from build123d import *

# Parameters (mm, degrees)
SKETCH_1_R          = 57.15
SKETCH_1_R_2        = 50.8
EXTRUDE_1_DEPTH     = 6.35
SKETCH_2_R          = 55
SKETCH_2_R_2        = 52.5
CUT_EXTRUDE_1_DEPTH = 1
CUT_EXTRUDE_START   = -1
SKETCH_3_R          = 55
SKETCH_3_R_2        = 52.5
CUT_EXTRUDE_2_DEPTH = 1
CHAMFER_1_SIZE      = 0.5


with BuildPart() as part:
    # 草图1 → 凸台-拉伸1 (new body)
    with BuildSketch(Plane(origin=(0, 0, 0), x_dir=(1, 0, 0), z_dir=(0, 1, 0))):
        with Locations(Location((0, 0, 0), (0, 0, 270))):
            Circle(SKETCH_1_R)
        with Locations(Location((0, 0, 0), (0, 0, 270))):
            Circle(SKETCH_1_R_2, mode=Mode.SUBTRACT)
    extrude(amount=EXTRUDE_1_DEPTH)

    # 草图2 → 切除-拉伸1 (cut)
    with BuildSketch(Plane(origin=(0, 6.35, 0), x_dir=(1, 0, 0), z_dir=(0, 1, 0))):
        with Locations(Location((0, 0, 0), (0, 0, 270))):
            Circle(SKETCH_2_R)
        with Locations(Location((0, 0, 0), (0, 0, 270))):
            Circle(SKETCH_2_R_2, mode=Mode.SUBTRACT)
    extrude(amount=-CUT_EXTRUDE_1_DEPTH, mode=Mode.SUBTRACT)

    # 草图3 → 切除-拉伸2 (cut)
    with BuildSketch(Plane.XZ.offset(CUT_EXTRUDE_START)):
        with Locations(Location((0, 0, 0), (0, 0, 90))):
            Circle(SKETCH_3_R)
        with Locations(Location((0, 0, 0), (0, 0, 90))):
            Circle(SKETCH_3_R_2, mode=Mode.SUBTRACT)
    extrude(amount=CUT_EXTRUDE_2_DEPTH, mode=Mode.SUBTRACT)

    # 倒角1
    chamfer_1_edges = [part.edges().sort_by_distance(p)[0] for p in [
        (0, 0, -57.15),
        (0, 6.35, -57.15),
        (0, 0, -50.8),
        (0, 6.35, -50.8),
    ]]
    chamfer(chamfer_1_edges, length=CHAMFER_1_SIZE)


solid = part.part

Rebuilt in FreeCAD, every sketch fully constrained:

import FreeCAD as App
import Part
import Sketcher
from FreeCAD import Vector
Q = App.Units.Quantity


def edges_at(feature, points):
    """Names of the edges that pass closest to the given points."""
    edges = feature.Shape.Edges
    near = lambda p: min(range(len(edges)), key=lambda i: edges[i].distToShape(Part.Vertex(*p))[0])
    return sorted({f"Edge{near(p) + 1}" for p in points})

doc = App.newDocument("Part")
body = doc.addObject("PartDesign::Body", "Body")

sketch1 = doc.addObject("Sketcher::SketchObject", "Sketch")
body.addObject(sketch1)
sketch1.AttachmentSupport = (doc.XZ_Plane, [""])
sketch1.MapMode = "FlatFace"
sketch1.addGeometry([
    Part.Circle(Vector(0, 0, 0), Vector(0, 0, 1), 57),
    Part.Circle(Vector(0, 0, 0), Vector(0, 0, 1), 51),
], False)
sketch1.addConstraint([
    Sketcher.Constraint("Coincident", 0, 3, -1, 1),
    Sketcher.Constraint("Coincident", 1, 3, -1, 1),
    Sketcher.Constraint("Diameter", 0, Q("114.3 mm")),
    Sketcher.Constraint("Diameter", 1, Q("101.6 mm")),
])
pad1 = doc.addObject("PartDesign::Pad", "Pad")
body.addObject(pad1)
pad1.Profile = sketch1
pad1.Length = 6.35
pad1.Reversed = True

sketch2 = doc.addObject("Sketcher::SketchObject", "Sketch001")
body.addObject(sketch2)
sketch2.AttachmentSupport = (doc.XZ_Plane, [""])
sketch2.MapMode = "FlatFace"
sketch2.AttachmentOffset = App.Placement(Vector(0, 0, -6.35), App.Rotation())
sketch2.addGeometry([
    Part.Circle(Vector(0, 0, 0), Vector(0, 0, 1), 55),
    Part.Circle(Vector(0, 0, 0), Vector(0, 0, 1), 52),
], False)
sketch2.addConstraint([
    Sketcher.Constraint("Coincident", 0, 3, -1, 1),
    Sketcher.Constraint("Coincident", 1, 3, -1, 1),
    Sketcher.Constraint("Diameter", 0, Q("110 mm")),
    Sketcher.Constraint("Diameter", 1, Q("105 mm")),
])
pocket1 = doc.addObject("PartDesign::Pocket", "Pocket")
body.addObject(pocket1)
pocket1.Profile = sketch2
pocket1.Length = 1
pocket1.Reversed = True

sketch3 = doc.addObject("Sketcher::SketchObject", "Sketch002")
body.addObject(sketch3)
sketch3.AttachmentSupport = (doc.XZ_Plane, [""])
sketch3.MapMode = "FlatFace"
sketch3.AttachmentOffset = App.Placement(Vector(0, 0, -1), App.Rotation())
sketch3.addGeometry([
    Part.Circle(Vector(0, 0, 0), Vector(0, 0, 1), 55),
    Part.Circle(Vector(0, 0, 0), Vector(0, 0, 1), 52),
], False)
sketch3.addConstraint([
    Sketcher.Constraint("Coincident", 0, 3, -1, 1),
    Sketcher.Constraint("Coincident", 1, 3, -1, 1),
    Sketcher.Constraint("Diameter", 0, Q("110 mm")),
    Sketcher.Constraint("Diameter", 1, Q("105 mm")),
])
pocket2 = doc.addObject("PartDesign::Pocket", "Pocket001")
body.addObject(pocket2)
pocket2.Profile = sketch3
pocket2.Length = 1
pocket2.Reversed = True
doc.recompute()

chamfer = doc.addObject("PartDesign::Chamfer", "Chamfer")
body.addObject(chamfer)
chamfer.Base = (pocket2, edges_at(pocket2, [
    (0, 0, -57.15),
    (0, 6.35, -57.15),
    (0, 0, -50.8),
    (0, 6.35, -50.8),
]))
chamfer.Size = 0.5

doc.recompute()
